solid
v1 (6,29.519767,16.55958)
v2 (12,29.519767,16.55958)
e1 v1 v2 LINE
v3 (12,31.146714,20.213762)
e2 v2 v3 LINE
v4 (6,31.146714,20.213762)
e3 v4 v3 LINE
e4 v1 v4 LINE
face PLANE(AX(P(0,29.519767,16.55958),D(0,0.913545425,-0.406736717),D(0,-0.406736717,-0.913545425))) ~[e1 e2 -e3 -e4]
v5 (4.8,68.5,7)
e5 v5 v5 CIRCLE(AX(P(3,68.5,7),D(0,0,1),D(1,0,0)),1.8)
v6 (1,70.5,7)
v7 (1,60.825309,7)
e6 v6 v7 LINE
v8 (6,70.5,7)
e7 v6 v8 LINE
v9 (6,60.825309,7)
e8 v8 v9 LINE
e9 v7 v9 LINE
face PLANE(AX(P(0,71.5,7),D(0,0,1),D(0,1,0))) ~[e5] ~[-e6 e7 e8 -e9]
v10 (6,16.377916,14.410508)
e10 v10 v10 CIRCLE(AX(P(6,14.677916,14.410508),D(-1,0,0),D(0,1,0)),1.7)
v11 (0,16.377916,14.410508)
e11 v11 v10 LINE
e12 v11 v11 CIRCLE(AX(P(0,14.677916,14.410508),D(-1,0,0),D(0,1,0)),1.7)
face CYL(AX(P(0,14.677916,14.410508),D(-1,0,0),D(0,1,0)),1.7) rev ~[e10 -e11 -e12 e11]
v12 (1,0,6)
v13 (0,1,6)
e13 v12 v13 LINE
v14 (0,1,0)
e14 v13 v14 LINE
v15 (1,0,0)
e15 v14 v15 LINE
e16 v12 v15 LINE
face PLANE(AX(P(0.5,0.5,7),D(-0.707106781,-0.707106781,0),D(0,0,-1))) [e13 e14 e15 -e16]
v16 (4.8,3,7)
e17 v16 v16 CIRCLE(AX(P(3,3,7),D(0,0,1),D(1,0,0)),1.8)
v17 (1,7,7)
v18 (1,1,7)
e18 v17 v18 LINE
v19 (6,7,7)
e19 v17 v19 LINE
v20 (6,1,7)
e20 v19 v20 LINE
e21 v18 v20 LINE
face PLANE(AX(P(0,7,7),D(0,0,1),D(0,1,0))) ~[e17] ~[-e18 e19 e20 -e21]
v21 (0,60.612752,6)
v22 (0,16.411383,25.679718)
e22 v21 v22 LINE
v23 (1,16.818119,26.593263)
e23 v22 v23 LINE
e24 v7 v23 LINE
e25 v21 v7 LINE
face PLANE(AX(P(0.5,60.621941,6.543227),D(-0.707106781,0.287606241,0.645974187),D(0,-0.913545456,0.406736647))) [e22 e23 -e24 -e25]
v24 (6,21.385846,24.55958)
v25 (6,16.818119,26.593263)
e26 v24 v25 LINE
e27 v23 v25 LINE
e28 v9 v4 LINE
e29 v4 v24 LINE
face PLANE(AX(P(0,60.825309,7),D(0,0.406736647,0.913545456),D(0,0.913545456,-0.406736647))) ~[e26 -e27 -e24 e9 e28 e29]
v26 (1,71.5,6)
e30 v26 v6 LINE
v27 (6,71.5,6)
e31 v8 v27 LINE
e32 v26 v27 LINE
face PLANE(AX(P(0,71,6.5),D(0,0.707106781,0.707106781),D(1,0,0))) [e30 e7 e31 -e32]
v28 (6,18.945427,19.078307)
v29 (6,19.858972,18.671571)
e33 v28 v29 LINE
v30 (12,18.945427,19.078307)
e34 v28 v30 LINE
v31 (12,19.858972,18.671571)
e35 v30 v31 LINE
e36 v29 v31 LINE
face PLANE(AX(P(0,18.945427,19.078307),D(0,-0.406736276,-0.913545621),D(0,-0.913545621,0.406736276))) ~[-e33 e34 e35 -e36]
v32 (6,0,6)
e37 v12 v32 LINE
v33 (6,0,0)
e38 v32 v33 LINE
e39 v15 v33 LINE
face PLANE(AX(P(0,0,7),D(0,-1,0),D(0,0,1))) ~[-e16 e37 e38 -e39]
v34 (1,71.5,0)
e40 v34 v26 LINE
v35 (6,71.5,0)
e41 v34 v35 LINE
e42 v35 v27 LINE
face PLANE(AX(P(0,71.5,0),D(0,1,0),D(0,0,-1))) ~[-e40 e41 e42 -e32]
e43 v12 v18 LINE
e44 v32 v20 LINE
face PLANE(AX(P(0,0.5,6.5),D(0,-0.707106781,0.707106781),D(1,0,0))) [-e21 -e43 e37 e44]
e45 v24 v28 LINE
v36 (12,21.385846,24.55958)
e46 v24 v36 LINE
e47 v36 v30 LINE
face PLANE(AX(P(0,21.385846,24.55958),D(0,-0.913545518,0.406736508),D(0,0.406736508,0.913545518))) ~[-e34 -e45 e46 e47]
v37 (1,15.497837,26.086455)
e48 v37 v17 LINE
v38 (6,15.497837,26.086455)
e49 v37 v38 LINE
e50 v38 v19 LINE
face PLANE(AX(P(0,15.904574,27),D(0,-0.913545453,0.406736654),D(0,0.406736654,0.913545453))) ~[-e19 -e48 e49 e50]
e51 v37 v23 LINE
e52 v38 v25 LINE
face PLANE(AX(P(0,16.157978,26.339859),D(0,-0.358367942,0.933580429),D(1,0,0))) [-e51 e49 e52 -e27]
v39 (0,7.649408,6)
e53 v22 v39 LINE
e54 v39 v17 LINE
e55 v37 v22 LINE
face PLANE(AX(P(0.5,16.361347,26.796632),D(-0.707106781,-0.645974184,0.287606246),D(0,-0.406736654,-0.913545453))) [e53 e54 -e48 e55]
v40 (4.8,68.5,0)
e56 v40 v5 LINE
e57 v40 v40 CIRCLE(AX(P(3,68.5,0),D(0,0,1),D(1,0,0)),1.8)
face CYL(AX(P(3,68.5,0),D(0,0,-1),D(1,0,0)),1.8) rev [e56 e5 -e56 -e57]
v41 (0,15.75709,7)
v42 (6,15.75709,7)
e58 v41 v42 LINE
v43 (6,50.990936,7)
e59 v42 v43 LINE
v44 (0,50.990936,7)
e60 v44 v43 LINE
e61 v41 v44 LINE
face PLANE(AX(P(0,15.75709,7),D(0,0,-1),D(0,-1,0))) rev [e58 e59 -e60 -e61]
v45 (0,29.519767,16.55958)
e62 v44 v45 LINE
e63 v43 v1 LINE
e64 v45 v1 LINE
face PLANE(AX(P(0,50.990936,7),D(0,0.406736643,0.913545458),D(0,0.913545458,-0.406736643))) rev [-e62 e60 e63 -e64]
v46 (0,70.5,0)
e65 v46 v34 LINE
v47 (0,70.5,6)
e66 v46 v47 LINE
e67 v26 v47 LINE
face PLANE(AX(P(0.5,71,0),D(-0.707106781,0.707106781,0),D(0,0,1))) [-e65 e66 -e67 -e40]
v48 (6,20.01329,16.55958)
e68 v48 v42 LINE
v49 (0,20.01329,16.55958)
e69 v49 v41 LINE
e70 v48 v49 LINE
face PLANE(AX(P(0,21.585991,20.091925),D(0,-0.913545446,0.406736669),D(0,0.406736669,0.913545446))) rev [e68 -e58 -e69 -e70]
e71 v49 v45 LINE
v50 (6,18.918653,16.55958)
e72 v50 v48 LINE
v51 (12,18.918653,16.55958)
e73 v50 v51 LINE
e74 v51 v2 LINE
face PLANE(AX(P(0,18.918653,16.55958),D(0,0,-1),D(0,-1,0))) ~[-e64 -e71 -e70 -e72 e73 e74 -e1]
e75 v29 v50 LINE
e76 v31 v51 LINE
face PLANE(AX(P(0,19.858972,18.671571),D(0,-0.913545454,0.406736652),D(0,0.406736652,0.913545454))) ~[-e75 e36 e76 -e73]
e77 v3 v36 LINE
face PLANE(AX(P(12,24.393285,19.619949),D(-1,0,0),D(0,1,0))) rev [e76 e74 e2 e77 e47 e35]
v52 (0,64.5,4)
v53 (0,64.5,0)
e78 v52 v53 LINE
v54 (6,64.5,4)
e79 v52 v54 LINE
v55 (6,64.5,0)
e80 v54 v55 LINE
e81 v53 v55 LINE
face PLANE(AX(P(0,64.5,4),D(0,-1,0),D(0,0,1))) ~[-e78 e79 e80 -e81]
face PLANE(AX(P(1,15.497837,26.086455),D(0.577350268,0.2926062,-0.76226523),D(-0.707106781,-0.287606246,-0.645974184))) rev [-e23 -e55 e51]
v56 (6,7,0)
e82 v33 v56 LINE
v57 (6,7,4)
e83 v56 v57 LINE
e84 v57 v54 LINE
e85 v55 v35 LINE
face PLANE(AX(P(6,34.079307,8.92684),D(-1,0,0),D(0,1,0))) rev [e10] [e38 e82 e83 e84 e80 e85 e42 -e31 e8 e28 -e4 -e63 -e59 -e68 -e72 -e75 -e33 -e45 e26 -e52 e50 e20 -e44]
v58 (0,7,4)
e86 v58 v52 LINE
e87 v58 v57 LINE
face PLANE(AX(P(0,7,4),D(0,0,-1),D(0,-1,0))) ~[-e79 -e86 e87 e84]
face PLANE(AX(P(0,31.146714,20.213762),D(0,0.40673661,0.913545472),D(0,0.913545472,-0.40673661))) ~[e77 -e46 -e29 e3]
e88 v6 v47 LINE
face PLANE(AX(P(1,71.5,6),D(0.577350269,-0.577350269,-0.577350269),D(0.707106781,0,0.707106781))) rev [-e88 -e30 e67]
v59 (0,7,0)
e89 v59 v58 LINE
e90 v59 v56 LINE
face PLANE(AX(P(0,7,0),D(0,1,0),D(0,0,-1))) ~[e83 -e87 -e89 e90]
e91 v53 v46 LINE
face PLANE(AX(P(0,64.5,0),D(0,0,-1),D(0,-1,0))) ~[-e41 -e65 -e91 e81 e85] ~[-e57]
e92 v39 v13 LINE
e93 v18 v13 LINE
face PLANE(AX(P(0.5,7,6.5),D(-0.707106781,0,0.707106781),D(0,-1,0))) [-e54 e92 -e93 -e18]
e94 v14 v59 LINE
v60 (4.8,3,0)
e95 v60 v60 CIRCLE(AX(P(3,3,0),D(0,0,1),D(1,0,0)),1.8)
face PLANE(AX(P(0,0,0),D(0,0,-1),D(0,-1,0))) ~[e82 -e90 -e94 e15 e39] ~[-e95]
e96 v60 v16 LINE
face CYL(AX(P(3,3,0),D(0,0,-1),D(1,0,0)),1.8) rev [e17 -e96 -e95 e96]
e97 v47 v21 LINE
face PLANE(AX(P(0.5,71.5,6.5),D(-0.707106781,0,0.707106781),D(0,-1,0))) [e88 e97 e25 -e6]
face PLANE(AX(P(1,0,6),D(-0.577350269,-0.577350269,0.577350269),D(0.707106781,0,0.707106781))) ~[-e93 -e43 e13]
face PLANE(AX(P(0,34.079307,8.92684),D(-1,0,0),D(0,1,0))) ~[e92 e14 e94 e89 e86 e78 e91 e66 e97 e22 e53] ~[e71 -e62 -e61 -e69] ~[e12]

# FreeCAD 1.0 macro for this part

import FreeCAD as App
import Part
import Sketcher

V = App.Vector
Q = App.Units.Quantity


def edges_at(feature, points):
    """Names of the edges that pass closest to the given points."""
    edges = feature.Shape.Edges
    near = lambda p: min(range(len(edges)), key=lambda i: edges[i].distToShape(Part.Vertex(*p))[0])
    return sorted({f"Edge{near(p) + 1}" for p in points})


def add_polygon(sketch, points):
    """Adds a closed chain of lines whose ends are joined by coincident constraints."""
    first, n = sketch.GeometryCount, len(points)
    for a, b in zip(points, points[1:] + points[:1]):
        sketch.addGeometry(Part.LineSegment(App.Vector(*a, 0), App.Vector(*b, 0)), False)
    for i in range(n):
        sketch.addConstraint(Sketcher.Constraint("Coincident", first + i, 2, first + (i + 1) % n, 1))

doc = App.newDocument("Part")
params = doc.addObject("Spreadsheet::Sheet", "Params")
for row, (alias, value) in enumerate([
    ("sketch1_diameter", "3.4 mm"),
    ("sketch1_width", "7 mm"),
    ("sketch1_height", "4 mm"),
    ("sketch1_width2", "57.5 mm"),
    ("pad1_length", "6 mm"),
    ("sketch2_diameter", "3.6 mm"),
    ("pocket1_length", "7 mm"),
    ("sketch3_length", "6 mm"),
    ("sketch3_length2", "4 mm"),
    ("sketch3_length3", "0.999999 mm"),
    ("pad2_length", "12 mm"),
    ("chamfer_size", "1 mm"),
], start=1):
    params.set(f"A{row}", alias)
    params.set(f"B{row}", "=" + value)
    params.setAlias(f"B{row}", alias)

body = doc.addObject("PartDesign::Body", "Body")

# Sketch on YZ plane
sketch1 = body.newObject("Sketcher::SketchObject", "Sketch")
sketch1.AttachmentSupport = (doc.getObject("YZ_Plane"), [""])
sketch1.MapMode = "FlatFace"
add_polygon(sketch1, [(71.5, -7), (71.5, 0), (64.5, 0), (64.5, -4), (7, -4), (7, 0), (0, 0), (0, -7), (7, -7), (15.9, -27), (60.8, -7)])  # lines 0-10
sketch1.addGeometry(Part.Circle(V(14.7, -14.4, 0), V(0, 0, 1), 1.7), False)  # 11
add_polygon(sketch1, [(15.8, -7), (51, -7), (21.6, -20.1)])  # lines 12-14
sketch1.addConstraint([
    Sketcher.Constraint("Vertical", 0),
    Sketcher.Constraint("Horizontal", 1),
    Sketcher.Constraint("Vertical", 2),
    Sketcher.Constraint("Horizontal", 3),
    Sketcher.Constraint("Vertical", 4),
    Sketcher.Constraint("Horizontal", 5),
    Sketcher.Constraint("Vertical", 6),
    Sketcher.Constraint("Horizontal", 7),
    Sketcher.Constraint("Horizontal", 10),
    Sketcher.Constraint("Horizontal", 12),
    Sketcher.Constraint("Coincident", 5, 2, -1, 1),
    Sketcher.Constraint("PointOnObject", 0, 2, -1),
    Sketcher.Constraint("Perpendicular", 8, 9),
    Sketcher.Constraint("Parallel", 9, 13),
    Sketcher.Constraint("Perpendicular", 13, 14),
    Sketcher.Constraint("Horizontal", 7, 2, 9, 2),
    Sketcher.Constraint("Horizontal", 10, 2, 12, 2),
    Sketcher.Constraint("Vertical", 4, 2, 7, 2),
    Sketcher.Constraint("Equal", 1, 5),
    Sketcher.Constraint("Equal", 7, 0),
    Sketcher.Constraint("Diameter", 11, Q("3.4 mm")),
    Sketcher.Constraint("DistanceX", 1, 2, 1, 1, Q("7 mm")),
    Sketcher.Constraint("DistanceY", 2, 2, 2, 1, Q("4 mm")),
    Sketcher.Constraint("Angle", 8, Q("-65.999999 deg")),
    Sketcher.Constraint("DistanceX", 3, 2, 3, 1, Q("57.5 mm")),
    Sketcher.Constraint("DistanceY", 8, 2, -1, 1, Q("27 mm")),
    Sketcher.Constraint("DistanceX", 14, 2, 13, 2, Q("5.828901 mm")),
    Sketcher.Constraint("DistanceX", -1, 1, 13, 2, Q("21.585991 mm")),
    Sketcher.Constraint("DistanceX", 11, 3, 8, 2, Q("1.226658 mm")),
    Sketcher.Constraint("DistanceY", 11, 3, -1, 1, Q("14.410508 mm")),
])
sketch1.setExpression("Constraints[34]", "Params.sketch1_diameter")
sketch1.setExpression("Constraints[35]", "Params.sketch1_width")
sketch1.setExpression("Constraints[36]", "Params.sketch1_height")
sketch1.setExpression("Constraints[38]", "Params.sketch1_width2")
pad1 = body.newObject("PartDesign::Pad", "Pad")
pad1.Profile = sketch1
pad1.setExpression("Length", "Params.pad1_length")

# Sketch on XY plane
sketch2 = body.newObject("Sketcher::SketchObject", "Sketch001")
sketch2.AttachmentSupport = (doc.getObject("XY_Plane"), [""])
sketch2.MapMode = "FlatFace"
sketch2.addGeometry([
    Part.Circle(V(3, 68.5, 0), V(0, 0, 1), 1.8),
    Part.Circle(V(3, 3, 0), V(0, 0, 1), 1.8),
], False)
sketch2.addConstraint([
    Sketcher.Constraint("Equal", 0, 1),
    Sketcher.Constraint("Vertical", 0, 3, 1, 3),
    Sketcher.Constraint("Diameter", 0, Q("3.6 mm")),
    Sketcher.Constraint("DistanceX", -1, 1, 0, 3, Q("3 mm")),
    Sketcher.Constraint("DistanceY", -1, 1, 1, 3, Q("3 mm")),
    Sketcher.Constraint("DistanceY", -1, 1, 0, 3, Q("68.5 mm")),
])
sketch2.setExpression("Constraints[2]", "Params.sketch2_diameter")
pocket1 = body.newObject("PartDesign::Pocket", "Pocket")
pocket1.Profile = sketch2
pocket1.setExpression("Length", "Params.pocket1_length")

# Sketch on YZ plane
sketch3 = body.newObject("Sketcher::SketchObject", "Sketch002")
sketch3.AttachmentSupport = (doc.getObject("YZ_Plane"), [""])
sketch3.MapMode = "FlatFace"
add_polygon(sketch3, [(18.9, -19.1), (21.4, -24.6), (31.1, -20.2), (29.5, -16.6), (18.9, -16.6), (19.9, -18.7)])  # lines 0-5
sketch3.addConstraint([
    Sketcher.Constraint("Horizontal", 3),
    Sketcher.Constraint("Perpendicular", 0, 1),
    Sketcher.Constraint("Perpendicular", 1, 2),
    Sketcher.Constraint("Parallel", 2, 4),
    Sketcher.Constraint("Perpendicular", 4, 5),
    Sketcher.Constraint("Angle", 0, Q("-66.000008 deg")),
    Sketcher.Constraint("Distance", 0, Q("6 mm")),
    Sketcher.Constraint("Distance", 2, Q("4 mm")),
    Sketcher.Constraint("Distance", 5, Q("0.999999 mm")),
    Sketcher.Constraint("DistanceY", 0, 2, 2, 2, Q("8 mm")),
    Sketcher.Constraint("DistanceY", 0, 2, -1, 1, Q("24.55958 mm")),
    Sketcher.Constraint("DistanceX", -1, 1, 0, 2, Q("21.385846 mm")),
])
sketch3.setExpression("Constraints[12]", "Params.sketch3_length")
sketch3.setExpression("Constraints[13]", "Params.sketch3_length2")
sketch3.setExpression("Constraints[14]", "Params.sketch3_length3")
pad2 = body.newObject("PartDesign::Pad", "Pad001")
pad2.Profile = sketch3
pad2.setExpression("Length", "Params.pad2_length")
doc.recompute()

chamfer = body.newObject("PartDesign::Chamfer", "Chamfer")
chamfer.Base = (pad2, edges_at(pad2, [
    (0, 66.163, -7),
    (0, 38.365, -17),
    (0, 38.365, -17),
    (0, 38.365, -17),
    (0, 11.452, -17),
    (0, 3.5, -7),
    (3, 0, -7),
    (3, 15.905, -27),
    (3, 71.5, -7),
    (0, 0, -3.5),
    (0, 71.5, -3.5),
]))
chamfer.setExpression("Size", "Params.chamfer_size")
body2 = doc.addObject("PartDesign::Body", "Body001")
doc.recompute()

mirroring = doc.addObject("Part::Mirroring", "Mirroring")
mirroring.Source = body
mirroring.Base = V(0, 0, 0)
mirroring.Normal = V(0, 0, 1)
body2.BaseFeature = mirroring
doc.recompute()
body.Visibility = False
mirroring.Visibility = False

doc.recompute()
